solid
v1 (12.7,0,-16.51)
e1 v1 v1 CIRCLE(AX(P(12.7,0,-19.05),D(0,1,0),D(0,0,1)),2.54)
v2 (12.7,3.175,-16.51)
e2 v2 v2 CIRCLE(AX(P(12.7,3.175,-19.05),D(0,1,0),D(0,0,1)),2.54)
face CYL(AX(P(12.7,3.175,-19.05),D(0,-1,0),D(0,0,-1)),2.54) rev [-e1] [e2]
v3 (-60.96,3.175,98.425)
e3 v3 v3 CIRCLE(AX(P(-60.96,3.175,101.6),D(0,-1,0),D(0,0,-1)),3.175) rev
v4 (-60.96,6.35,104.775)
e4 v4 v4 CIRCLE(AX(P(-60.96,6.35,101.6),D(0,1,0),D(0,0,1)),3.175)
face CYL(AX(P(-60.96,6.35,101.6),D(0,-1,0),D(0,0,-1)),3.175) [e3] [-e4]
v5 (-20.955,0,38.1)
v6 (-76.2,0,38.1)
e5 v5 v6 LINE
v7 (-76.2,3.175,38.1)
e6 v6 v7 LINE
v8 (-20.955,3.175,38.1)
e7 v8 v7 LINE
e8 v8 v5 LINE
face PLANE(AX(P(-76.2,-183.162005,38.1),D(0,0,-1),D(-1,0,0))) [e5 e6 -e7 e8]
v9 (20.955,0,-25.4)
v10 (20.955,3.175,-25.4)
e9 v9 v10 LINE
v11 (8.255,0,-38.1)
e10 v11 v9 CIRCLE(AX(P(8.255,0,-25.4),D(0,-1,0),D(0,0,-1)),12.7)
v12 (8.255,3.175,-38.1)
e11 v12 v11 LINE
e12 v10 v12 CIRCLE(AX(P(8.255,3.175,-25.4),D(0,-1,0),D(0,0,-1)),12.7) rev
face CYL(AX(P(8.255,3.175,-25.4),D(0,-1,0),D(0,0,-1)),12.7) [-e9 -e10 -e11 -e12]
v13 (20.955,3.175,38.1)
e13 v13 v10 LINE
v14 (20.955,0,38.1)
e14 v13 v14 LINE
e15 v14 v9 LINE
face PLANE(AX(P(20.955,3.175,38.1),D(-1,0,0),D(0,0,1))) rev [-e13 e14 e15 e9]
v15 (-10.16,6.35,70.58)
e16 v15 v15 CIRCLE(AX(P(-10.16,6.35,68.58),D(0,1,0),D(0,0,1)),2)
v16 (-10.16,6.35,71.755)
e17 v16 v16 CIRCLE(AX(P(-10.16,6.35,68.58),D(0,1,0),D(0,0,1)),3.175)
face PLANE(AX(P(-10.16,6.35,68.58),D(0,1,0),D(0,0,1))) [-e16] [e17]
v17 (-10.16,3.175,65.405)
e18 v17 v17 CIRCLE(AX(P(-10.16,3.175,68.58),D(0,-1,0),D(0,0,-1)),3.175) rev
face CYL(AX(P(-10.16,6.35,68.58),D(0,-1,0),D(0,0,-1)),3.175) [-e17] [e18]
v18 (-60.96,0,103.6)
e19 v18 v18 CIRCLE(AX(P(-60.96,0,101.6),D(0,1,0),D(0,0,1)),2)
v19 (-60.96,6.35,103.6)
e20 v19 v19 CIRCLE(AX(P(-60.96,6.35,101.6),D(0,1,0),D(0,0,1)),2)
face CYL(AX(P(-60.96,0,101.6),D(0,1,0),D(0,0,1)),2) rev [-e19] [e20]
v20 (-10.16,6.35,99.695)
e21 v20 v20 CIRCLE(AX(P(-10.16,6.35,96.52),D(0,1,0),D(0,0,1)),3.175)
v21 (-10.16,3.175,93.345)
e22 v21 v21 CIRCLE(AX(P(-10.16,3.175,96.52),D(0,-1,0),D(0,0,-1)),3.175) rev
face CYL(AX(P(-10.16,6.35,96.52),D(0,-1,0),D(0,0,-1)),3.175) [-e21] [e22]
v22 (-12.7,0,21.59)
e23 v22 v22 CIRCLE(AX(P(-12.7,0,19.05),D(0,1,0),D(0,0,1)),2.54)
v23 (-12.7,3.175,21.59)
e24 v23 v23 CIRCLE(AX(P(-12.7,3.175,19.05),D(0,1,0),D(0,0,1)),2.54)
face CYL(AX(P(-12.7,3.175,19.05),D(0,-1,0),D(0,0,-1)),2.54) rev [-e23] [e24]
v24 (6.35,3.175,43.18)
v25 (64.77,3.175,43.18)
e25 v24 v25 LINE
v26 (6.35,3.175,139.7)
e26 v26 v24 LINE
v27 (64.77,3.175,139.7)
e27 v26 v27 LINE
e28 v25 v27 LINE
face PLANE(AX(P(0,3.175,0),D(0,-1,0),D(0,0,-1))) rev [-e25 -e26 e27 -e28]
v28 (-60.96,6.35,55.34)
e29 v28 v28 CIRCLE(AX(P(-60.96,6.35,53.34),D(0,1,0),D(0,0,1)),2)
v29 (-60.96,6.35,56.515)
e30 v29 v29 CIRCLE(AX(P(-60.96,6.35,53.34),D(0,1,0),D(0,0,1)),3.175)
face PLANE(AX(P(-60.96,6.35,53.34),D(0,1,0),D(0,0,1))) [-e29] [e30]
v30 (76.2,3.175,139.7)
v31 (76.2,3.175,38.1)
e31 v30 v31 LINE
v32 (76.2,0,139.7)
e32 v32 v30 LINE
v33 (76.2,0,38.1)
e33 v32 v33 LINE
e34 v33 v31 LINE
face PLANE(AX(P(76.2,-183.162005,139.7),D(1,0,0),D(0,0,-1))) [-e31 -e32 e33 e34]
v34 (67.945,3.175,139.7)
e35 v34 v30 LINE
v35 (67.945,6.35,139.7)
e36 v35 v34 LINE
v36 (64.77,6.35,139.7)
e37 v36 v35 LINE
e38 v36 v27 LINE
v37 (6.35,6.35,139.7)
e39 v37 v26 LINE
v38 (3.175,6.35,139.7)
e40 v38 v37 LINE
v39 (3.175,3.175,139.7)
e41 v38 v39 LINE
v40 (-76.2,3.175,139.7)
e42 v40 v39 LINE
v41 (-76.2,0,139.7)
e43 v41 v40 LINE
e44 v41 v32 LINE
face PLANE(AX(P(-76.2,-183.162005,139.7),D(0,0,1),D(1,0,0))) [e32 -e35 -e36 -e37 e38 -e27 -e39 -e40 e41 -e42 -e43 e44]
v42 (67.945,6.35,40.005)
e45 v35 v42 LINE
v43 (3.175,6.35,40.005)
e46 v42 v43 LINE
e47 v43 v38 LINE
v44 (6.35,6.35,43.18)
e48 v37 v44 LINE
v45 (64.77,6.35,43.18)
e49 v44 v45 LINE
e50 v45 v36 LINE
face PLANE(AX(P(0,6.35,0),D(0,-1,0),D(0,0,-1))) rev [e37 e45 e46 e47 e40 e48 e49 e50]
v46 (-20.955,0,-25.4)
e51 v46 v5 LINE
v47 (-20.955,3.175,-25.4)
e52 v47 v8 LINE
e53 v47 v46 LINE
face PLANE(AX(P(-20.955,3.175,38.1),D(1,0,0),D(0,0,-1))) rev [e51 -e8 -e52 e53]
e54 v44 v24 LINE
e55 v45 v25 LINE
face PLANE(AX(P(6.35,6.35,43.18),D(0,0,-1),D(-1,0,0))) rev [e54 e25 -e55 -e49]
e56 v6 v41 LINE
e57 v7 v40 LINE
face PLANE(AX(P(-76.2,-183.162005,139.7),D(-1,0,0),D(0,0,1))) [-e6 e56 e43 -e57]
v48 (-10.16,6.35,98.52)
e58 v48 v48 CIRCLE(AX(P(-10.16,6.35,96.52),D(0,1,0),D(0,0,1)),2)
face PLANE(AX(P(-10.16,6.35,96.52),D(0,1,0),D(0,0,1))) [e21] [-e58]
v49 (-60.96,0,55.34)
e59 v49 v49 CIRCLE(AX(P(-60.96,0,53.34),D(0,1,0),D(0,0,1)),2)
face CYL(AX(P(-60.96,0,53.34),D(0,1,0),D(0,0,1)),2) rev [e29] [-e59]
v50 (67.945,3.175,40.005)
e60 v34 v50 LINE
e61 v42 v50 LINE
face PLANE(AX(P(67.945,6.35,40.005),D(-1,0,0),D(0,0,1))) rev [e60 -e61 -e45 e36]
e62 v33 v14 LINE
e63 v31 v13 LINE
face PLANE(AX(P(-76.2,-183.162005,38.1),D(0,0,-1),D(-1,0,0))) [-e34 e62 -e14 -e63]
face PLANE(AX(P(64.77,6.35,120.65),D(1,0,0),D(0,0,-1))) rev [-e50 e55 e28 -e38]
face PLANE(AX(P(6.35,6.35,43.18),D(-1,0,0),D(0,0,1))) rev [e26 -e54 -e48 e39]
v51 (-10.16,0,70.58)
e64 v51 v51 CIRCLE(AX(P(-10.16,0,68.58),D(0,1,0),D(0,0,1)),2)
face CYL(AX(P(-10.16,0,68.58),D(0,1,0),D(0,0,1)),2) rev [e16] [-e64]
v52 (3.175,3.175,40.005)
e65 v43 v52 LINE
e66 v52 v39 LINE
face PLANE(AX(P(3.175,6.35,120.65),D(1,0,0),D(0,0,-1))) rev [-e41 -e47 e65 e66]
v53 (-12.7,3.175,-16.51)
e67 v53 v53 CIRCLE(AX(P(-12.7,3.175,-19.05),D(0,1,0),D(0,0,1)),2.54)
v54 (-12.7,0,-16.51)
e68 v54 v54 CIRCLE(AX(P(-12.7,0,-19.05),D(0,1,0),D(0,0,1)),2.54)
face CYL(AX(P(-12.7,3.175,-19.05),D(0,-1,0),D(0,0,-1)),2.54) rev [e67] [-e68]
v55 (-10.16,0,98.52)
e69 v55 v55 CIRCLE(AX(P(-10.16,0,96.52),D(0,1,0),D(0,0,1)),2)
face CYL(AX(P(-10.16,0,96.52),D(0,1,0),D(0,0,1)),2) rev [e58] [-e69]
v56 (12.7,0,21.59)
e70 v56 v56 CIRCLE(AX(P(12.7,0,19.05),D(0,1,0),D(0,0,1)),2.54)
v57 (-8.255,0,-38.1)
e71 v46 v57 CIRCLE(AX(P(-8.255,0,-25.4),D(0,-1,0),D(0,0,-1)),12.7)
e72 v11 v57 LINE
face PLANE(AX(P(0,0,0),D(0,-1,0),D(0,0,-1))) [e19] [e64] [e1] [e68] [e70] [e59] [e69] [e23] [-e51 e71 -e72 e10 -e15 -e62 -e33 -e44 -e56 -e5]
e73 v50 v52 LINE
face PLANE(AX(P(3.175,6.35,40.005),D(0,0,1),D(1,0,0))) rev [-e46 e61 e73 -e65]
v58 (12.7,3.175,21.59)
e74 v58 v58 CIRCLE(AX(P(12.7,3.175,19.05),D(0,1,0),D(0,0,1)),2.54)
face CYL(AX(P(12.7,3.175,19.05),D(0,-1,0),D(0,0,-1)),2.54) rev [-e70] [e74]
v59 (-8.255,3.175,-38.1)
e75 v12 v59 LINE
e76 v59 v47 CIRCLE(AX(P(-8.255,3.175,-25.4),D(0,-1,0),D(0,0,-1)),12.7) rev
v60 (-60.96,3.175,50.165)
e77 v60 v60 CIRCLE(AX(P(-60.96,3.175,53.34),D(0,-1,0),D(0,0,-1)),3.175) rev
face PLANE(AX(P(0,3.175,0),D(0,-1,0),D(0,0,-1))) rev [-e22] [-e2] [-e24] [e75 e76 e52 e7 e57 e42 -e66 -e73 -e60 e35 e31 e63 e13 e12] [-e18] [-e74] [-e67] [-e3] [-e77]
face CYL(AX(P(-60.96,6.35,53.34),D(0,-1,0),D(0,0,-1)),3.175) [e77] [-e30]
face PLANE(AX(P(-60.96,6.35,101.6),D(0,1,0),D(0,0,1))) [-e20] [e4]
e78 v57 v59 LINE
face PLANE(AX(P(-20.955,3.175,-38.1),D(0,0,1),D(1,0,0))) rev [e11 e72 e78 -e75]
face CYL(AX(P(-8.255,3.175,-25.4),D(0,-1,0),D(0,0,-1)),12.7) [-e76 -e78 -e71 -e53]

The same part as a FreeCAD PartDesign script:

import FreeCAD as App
import Part
import Sketcher
from FreeCAD import Vector
Q = App.Units.Quantity


def edges_at(feature, points):
    """Names of the edges that pass closest to the given points."""
    edges = feature.Shape.Edges
    near = lambda p: min(range(len(edges)), key=lambda i: edges[i].distToShape(Part.Vertex(*p))[0])
    return sorted({f"Edge{near(p) + 1}" for p in points})

doc = App.newDocument("Part")
body = doc.addObject("PartDesign::Body", "Body")

# Sketch on XZ plane
sketch1 = body.newObject("Sketcher::SketchObject", "Sketch")
sketch1.AttachmentSupport = (doc.getObject("XZ_Plane"), [""])
sketch1.MapMode = "FlatFace"
sketch1.addGeometry(Part.LineSegment(Vector(-21, -38.1, 0), Vector(-21, 38.1, 0)), False)
sketch1.addGeometry(Part.LineSegment(Vector(-21, 38.1, 0), Vector(21, 38.1, 0)), False)
sketch1.addGeometry(Part.LineSegment(Vector(21, 38.1, 0), Vector(21, -38.1, 0)), False)
sketch1.addGeometry(Part.LineSegment(Vector(21, -38.1, 0), Vector(-21, -38.1, 0)), False)
sketch1.addGeometry(Part.Circle(Vector(-12.7, 19.1, 0), Vector(0, 0, 1), 2.5), False)
sketch1.addGeometry(Part.Circle(Vector(12.7, 19.1, 0), Vector(0, 0, 1), 2.5), False)
sketch1.addGeometry(Part.Circle(Vector(-12.7, -19.1, 0), Vector(0, 0, 1), 2.5), False)
sketch1.addGeometry(Part.Circle(Vector(12.7, -19.1, 0), Vector(0, 0, 1), 2.5), False)
sketch1.addConstraint(Sketcher.Constraint("Coincident", 0, 2, 1, 1))
sketch1.addConstraint(Sketcher.Constraint("Coincident", 1, 2, 2, 1))
sketch1.addConstraint(Sketcher.Constraint("Coincident", 2, 2, 3, 1))
sketch1.addConstraint(Sketcher.Constraint("Coincident", 3, 2, 0, 1))
sketch1.addConstraint(Sketcher.Constraint("Vertical", 0))
sketch1.addConstraint(Sketcher.Constraint("Horizontal", 1))
sketch1.addConstraint(Sketcher.Constraint("Vertical", 2))
sketch1.addConstraint(Sketcher.Constraint("Horizontal", 3))
sketch1.addConstraint(Sketcher.Constraint("Equal", 4, 5))
sketch1.addConstraint(Sketcher.Constraint("Equal", 5, 6))
sketch1.addConstraint(Sketcher.Constraint("Equal", 6, 7))
sketch1.addConstraint(Sketcher.Constraint("Symmetric", 5, 3, 6, 3, -1, 1))
sketch1.addConstraint(Sketcher.Constraint("Symmetric", 4, 3, 7, 3, -1, 1))
sketch1.addConstraint(Sketcher.Constraint("Symmetric", 0, 2, 2, 2, -1, 1))
sketch1.addConstraint(Sketcher.Constraint("Symmetric", 4, 3, 5, 3, -2))
sketch1.addConstraint(Sketcher.Constraint("Diameter", 4, Q("0.2 in")))
sketch1.addConstraint(Sketcher.Constraint("DistanceY", 0, 1, 0, 2, Q("3 in")))
sketch1.addConstraint(Sketcher.Constraint("DistanceX", 4, 3, 5, 3, Q("1 in")))
sketch1.addConstraint(Sketcher.Constraint("DistanceX", 1, 1, 1, 2, Q("1.65 in")))
sketch1.addConstraint(Sketcher.Constraint("DistanceY", 6, 3, 4, 3, Q("1.5 in")))
pad1 = body.newObject("PartDesign::Pad", "Pad")
pad1.Profile = sketch1
pad1.Length = Q("0.125 in")
pad1.Reversed = True

# Sketch on XZ plane
sketch2 = body.newObject("Sketcher::SketchObject", "Sketch001")
sketch2.AttachmentSupport = (doc.getObject("XZ_Plane"), [""])
sketch2.MapMode = "FlatFace"
sketch2.AttachmentOffset = App.Placement(Vector(0, 0, -0.125 * 25.4), App.Rotation())
sketch2.addGeometry(Part.LineSegment(Vector(-76, 38, 0), Vector(-76, 140, 0)), False)
sketch2.addGeometry(Part.LineSegment(Vector(-76, 140, 0), Vector(76, 140, 0)), False)
sketch2.addGeometry(Part.LineSegment(Vector(76, 140, 0), Vector(76, 38, 0)), False)
sketch2.addGeometry(Part.LineSegment(Vector(76, 38, 0), Vector(-76, 38, 0)), False)
sketch2.addConstraint(Sketcher.Constraint("Coincident", 0, 2, 1, 1))
sketch2.addConstraint(Sketcher.Constraint("Coincident", 1, 2, 2, 1))
sketch2.addConstraint(Sketcher.Constraint("Coincident", 2, 2, 3, 1))
sketch2.addConstraint(Sketcher.Constraint("Coincident", 3, 2, 0, 1))
sketch2.addConstraint(Sketcher.Constraint("Vertical", 0))
sketch2.addConstraint(Sketcher.Constraint("Horizontal", 1))
sketch2.addConstraint(Sketcher.Constraint("Vertical", 2))
sketch2.addConstraint(Sketcher.Constraint("Horizontal", 3))
sketch2.addConstraint(Sketcher.Constraint("DistanceX", 1, 1, 1, 2, Q("6 in")))
sketch2.addConstraint(Sketcher.Constraint("DistanceY", 0, 1, 0, 2, Q("4 in")))
sketch2.addConstraint(Sketcher.Constraint("DistanceX", 0, 2, -1, 1, Q("3 in")))
sketch2.addConstraint(Sketcher.Constraint("DistanceY", -1, 1, 0, 2, Q("5.5 in")))
pad2 = body.newObject("PartDesign::Pad", "Pad001")
pad2.Profile = sketch2
pad2.Length = Q("0.125 in")

# Sketch on XZ plane
sketch3 = body.newObject("Sketcher::SketchObject", "Sketch002")
sketch3.AttachmentSupport = (doc.getObject("XZ_Plane"), [""])
sketch3.MapMode = "FlatFace"
sketch3.AttachmentOffset = App.Placement(Vector(0, 0, -0.125 * 25.4), App.Rotation())
sketch3.addGeometry(Part.Circle(Vector(-61, 53.3, 0), Vector(0, 0, 1), 2), False)
sketch3.addGeometry(Part.Circle(Vector(-61, 101.6, 0), Vector(0, 0, 1), 2), False)
sketch3.addGeometry(Part.Circle(Vector(-10.2, 68.6, 0), Vector(0, 0, 1), 2), False)
sketch3.addGeometry(Part.Circle(Vector(-10.2, 96.5, 0), Vector(0, 0, 1), 2), False)
sketch3.addConstraint(Sketcher.Constraint("Equal", 0, 1))
sketch3.addConstraint(Sketcher.Constraint("Equal", 1, 2))
sketch3.addConstraint(Sketcher.Constraint("Equal", 2, 3))
sketch3.addConstraint(Sketcher.Constraint("Vertical", 0, 3, 1, 3))
sketch3.addConstraint(Sketcher.Constraint("Vertical", 2, 3, 3, 3))
sketch3.addConstraint(Sketcher.Constraint("DistanceY", -1, 1, 1, 3, Q("4 in")))
sketch3.addConstraint(Sketcher.Constraint("DistanceX", 0, 3, 2, 3, Q("2 in")))
sketch3.addConstraint(Sketcher.Constraint("DistanceX", 0, 3, -1, 1, Q("2.4 in")))
sketch3.addConstraint(Sketcher.Constraint("DistanceY", -1, 1, 0, 3, Q("2.1 in")))
sketch3.addConstraint(Sketcher.Constraint("DistanceY", -1, 1, 2, 3, Q("2.7 in")))
sketch3.addConstraint(Sketcher.Constraint("DistanceY", -1, 1, 3, 3, Q("3.8 in")))
sketch3.addConstraint(Sketcher.Constraint("Diameter", 0, 4.0))
pocket1 = body.newObject("PartDesign::Pocket", "Pocket")
pocket1.Profile = sketch3
pocket1.Type = "ThroughAll"
pocket1.Reversed = True

# Sketch on XZ plane
sketch4 = body.newObject("Sketcher::SketchObject", "Sketch003")
sketch4.AttachmentSupport = (doc.getObject("XZ_Plane"), [""])
sketch4.MapMode = "FlatFace"
sketch4.AttachmentOffset = App.Placement(Vector(0, 0, -0.125 * 25.4), App.Rotation())
sketch4.addGeometry(Part.LineSegment(Vector(64.8, 43.2, 0), Vector(64.8, 139.7, 0)), False)
sketch4.addGeometry(Part.LineSegment(Vector(64.8, 139.7, 0), Vector(67.9, 139.7, 0)), False)
sketch4.addGeometry(Part.LineSegment(Vector(67.9, 139.7, 0), Vector(67.9, 40, 0)), False)
sketch4.addGeometry(Part.LineSegment(Vector(67.9, 40, 0), Vector(3.2, 40, 0)), False)
sketch4.addGeometry(Part.LineSegment(Vector(3.2, 40, 0), Vector(3.2, 139.7, 0)), False)
sketch4.addGeometry(Part.LineSegment(Vector(3.2, 139.7, 0), Vector(6.3, 139.7, 0)), False)
sketch4.addGeometry(Part.LineSegment(Vector(6.3, 139.7, 0), Vector(6.3, 43.2, 0)), False)
sketch4.addGeometry(Part.LineSegment(Vector(6.3, 43.2, 0), Vector(64.8, 43.2, 0)), False)
sketch4.addConstraint(Sketcher.Constraint("Coincident", 0, 2, 1, 1))
sketch4.addConstraint(Sketcher.Constraint("Coincident", 1, 2, 2, 1))
sketch4.addConstraint(Sketcher.Constraint("Coincident", 2, 2, 3, 1))
sketch4.addConstraint(Sketcher.Constraint("Coincident", 3, 2, 4, 1))
sketch4.addConstraint(Sketcher.Constraint("Coincident", 4, 2, 5, 1))
sketch4.addConstraint(Sketcher.Constraint("Coincident", 5, 2, 6, 1))
sketch4.addConstraint(Sketcher.Constraint("Coincident", 6, 2, 7, 1))
sketch4.addConstraint(Sketcher.Constraint("Coincident", 7, 2, 0, 1))
sketch4.addConstraint(Sketcher.Constraint("Vertical", 0))
sketch4.addConstraint(Sketcher.Constraint("Horizontal", 1))
sketch4.addConstraint(Sketcher.Constraint("Vertical", 2))
sketch4.addConstraint(Sketcher.Constraint("Horizontal", 3))
sketch4.addConstraint(Sketcher.Constraint("Vertical", 4))
sketch4.addConstraint(Sketcher.Constraint("Horizontal", 5))
sketch4.addConstraint(Sketcher.Constraint("Vertical", 6))
sketch4.addConstraint(Sketcher.Constraint("Horizontal", 7))
sketch4.addConstraint(Sketcher.Constraint("Horizontal", 1, 2, 4, 2))
sketch4.addConstraint(Sketcher.Constraint("Equal", 1, 5))
sketch4.addConstraint(Sketcher.Constraint("DistanceX", 7, 1, 7, 2, Q("2.3 in")))
sketch4.addConstraint(Sketcher.Constraint("DistanceY", 0, 1, 0, 2, Q("3.8 in")))
sketch4.addConstraint(Sketcher.Constraint("DistanceX", 3, 2, 3, 1, Q("2.55 in")))
sketch4.addConstraint(Sketcher.Constraint("DistanceY", -1, 1, 0, 2, Q("5.5 in")))
sketch4.addConstraint(Sketcher.Constraint("DistanceY", 2, 2, 2, 1, Q("3.925 in")))
sketch4.addConstraint(Sketcher.Constraint("DistanceX", -1, 1, 0, 2, Q("2.55 in")))
pad3 = body.newObject("PartDesign::Pad", "Pad002")
pad3.Profile = sketch4
pad3.Length = Q("0.125 in")
pad3.Reversed = True

# Sketch on XZ plane
sketch5 = body.newObject("Sketcher::SketchObject", "Sketch004")
sketch5.AttachmentSupport = (doc.getObject("XZ_Plane"), [""])
sketch5.MapMode = "FlatFace"
sketch5.AttachmentOffset = App.Placement(Vector(0, 0, -0.25 * 25.4), App.Rotation())
sketch5.addGeometry(Part.Circle(Vector(-61, 53.3, 0), Vector(0, 0, 1), 3.2), False)
sketch5.addGeometry(Part.Circle(Vector(-61, 53.3, 0), Vector(0, 0, 1), 2), False)
sketch5.addGeometry(Part.Circle(Vector(-61, 101.6, 0), Vector(0, 0, 1), 3.2), False)
sketch5.addGeometry(Part.Circle(Vector(-61, 101.6, 0), Vector(0, 0, 1), 2), False)
sketch5.addGeometry(Part.Circle(Vector(-10.2, 96.5, 0), Vector(0, 0, 1), 3.2), False)
sketch5.addGeometry(Part.Circle(Vector(-10.2, 96.5, 0), Vector(0, 0, 1), 2), False)
sketch5.addGeometry(Part.Circle(Vector(-10.2, 68.6, 0), Vector(0, 0, 1), 3.2), False)
sketch5.addGeometry(Part.Circle(Vector(-10.2, 68.6, 0), Vector(0, 0, 1), 2), False)
sketch5.addConstraint(Sketcher.Constraint("Coincident", 1, 3, 0, 3))
sketch5.addConstraint(Sketcher.Constraint("Coincident", 3, 3, 2, 3))
sketch5.addConstraint(Sketcher.Constraint("Coincident", 5, 3, 4, 3))
sketch5.addConstraint(Sketcher.Constraint("Coincident", 7, 3, 6, 3))
sketch5.addConstraint(Sketcher.Constraint("Equal", 0, 2))
sketch5.addConstraint(Sketcher.Constraint("Equal", 1, 3))
sketch5.addConstraint(Sketcher.Constraint("Equal", 2, 4))
sketch5.addConstraint(Sketcher.Constraint("Equal", 3, 5))
sketch5.addConstraint(Sketcher.Constraint("Equal", 4, 6))
sketch5.addConstraint(Sketcher.Constraint("Equal", 5, 7))
sketch5.addConstraint(Sketcher.Constraint("Vertical", 1, 3, 2, 3))
sketch5.addConstraint(Sketcher.Constraint("Vertical", 5, 3, 6, 3))
sketch5.addConstraint(Sketcher.Constraint("Diameter", 0, Q("0.25 in")))
sketch5.addConstraint(Sketcher.Constraint("DistanceY", -1, 1, 2, 3, Q("4 in")))
sketch5.addConstraint(Sketcher.Constraint("DistanceX", 2, 3, 4, 3, Q("2 in")))
sketch5.addConstraint(Sketcher.Constraint("DistanceX", 0, 3, -1, 1, Q("2.4 in")))
sketch5.addConstraint(Sketcher.Constraint("DistanceY", -1, 1, 0, 3, Q("2.1 in")))
sketch5.addConstraint(Sketcher.Constraint("DistanceY", -1, 1, 4, 3, Q("3.8 in")))
sketch5.addConstraint(Sketcher.Constraint("DistanceY", -1, 1, 6, 3, Q("2.7 in")))
sketch5.addConstraint(Sketcher.Constraint("Diameter", 1, 4.0))
pad4 = body.newObject("PartDesign::Pad", "Pad003")
pad4.Profile = sketch5
pad4.Length = Q("0.125 in")
doc.recompute()

fillet = body.newObject("PartDesign::Fillet", "Fillet")
fillet.Base = (pad4, edges_at(pad4, [(-20.955, 1.587, -38.1), (20.955, 1.587, -38.1)]))
fillet.Radius = Q("0.5 in")

doc.recompute()
